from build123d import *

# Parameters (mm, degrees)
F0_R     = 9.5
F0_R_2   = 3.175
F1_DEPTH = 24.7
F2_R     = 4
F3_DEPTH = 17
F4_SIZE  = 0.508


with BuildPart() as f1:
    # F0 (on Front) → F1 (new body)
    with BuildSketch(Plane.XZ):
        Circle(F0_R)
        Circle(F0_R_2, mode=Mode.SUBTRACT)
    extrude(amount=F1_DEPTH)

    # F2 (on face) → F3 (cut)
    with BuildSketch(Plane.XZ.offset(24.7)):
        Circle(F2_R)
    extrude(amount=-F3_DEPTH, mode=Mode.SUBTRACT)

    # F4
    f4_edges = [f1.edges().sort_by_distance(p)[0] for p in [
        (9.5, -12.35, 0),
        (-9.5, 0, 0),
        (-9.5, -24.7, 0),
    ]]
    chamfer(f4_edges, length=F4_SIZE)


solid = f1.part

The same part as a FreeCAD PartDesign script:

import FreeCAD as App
import Part
import Sketcher

V = App.Vector


def edges_at(feature, points):
    """Names of the edges that pass closest to the given points."""
    edges = feature.Shape.Edges
    near = lambda p: min(range(len(edges)), key=lambda i: edges[i].distToShape(Part.Vertex(*p))[0])
    return sorted({f"Edge{near(p) + 1}" for p in points})

doc = App.newDocument("Part")
body = doc.addObject("PartDesign::Body", "Body")

sketch1 = body.newObject("Sketcher::SketchObject", "Sketch")
sketch1.AttachmentSupport = (doc.getObject("XZ_Plane"), [""])
sketch1.MapMode = "FlatFace"
sketch1.addGeometry([
    Part.Circle(V(0, 0, 0), V(0, 0, 1), 9.5),
    Part.Circle(V(0, 0, 0), V(0, 0, 1), 3.2),
], False)
sketch1.addConstraint([
    Sketcher.Constraint("Coincident", 0, 3, -1, 1),
    Sketcher.Constraint("Coincident", 1, 3, -1, 1),
    Sketcher.Constraint("Diameter", 0, 19.0),
    Sketcher.Constraint("Diameter", 1, 6.35),
])
pad1 = body.newObject("PartDesign::Pad", "Pad")
pad1.Profile = sketch1
pad1.Length = 24.7

sketch2 = body.newObject("Sketcher::SketchObject", "Sketch001")
sketch2.AttachmentSupport = (doc.getObject("XZ_Plane"), [""])
sketch2.MapMode = "FlatFace"
sketch2.AttachmentOffset = App.Placement(V(0, 0, 24.7), App.Rotation())
sketch2.addGeometry(Part.Circle(V(0, 0, 0), V(0, 0, 1), 4), False)
sketch2.addConstraint([
    Sketcher.Constraint("Coincident", 0, 3, -1, 1),
    Sketcher.Constraint("Diameter", 0, 8.0),
])
pocket1 = body.newObject("PartDesign::Pocket", "Pocket")
pocket1.Profile = sketch2
pocket1.Length = 17
doc.recompute()

chamfer = body.newObject("PartDesign::Chamfer", "Chamfer")
chamfer.Base = (pocket1, edges_at(pocket1, [(9.5, -12.35, 0), (-9.5, 0, 0), (-9.5, -24.7, 0)]))
chamfer.Size = 0.508

doc.recompute()
